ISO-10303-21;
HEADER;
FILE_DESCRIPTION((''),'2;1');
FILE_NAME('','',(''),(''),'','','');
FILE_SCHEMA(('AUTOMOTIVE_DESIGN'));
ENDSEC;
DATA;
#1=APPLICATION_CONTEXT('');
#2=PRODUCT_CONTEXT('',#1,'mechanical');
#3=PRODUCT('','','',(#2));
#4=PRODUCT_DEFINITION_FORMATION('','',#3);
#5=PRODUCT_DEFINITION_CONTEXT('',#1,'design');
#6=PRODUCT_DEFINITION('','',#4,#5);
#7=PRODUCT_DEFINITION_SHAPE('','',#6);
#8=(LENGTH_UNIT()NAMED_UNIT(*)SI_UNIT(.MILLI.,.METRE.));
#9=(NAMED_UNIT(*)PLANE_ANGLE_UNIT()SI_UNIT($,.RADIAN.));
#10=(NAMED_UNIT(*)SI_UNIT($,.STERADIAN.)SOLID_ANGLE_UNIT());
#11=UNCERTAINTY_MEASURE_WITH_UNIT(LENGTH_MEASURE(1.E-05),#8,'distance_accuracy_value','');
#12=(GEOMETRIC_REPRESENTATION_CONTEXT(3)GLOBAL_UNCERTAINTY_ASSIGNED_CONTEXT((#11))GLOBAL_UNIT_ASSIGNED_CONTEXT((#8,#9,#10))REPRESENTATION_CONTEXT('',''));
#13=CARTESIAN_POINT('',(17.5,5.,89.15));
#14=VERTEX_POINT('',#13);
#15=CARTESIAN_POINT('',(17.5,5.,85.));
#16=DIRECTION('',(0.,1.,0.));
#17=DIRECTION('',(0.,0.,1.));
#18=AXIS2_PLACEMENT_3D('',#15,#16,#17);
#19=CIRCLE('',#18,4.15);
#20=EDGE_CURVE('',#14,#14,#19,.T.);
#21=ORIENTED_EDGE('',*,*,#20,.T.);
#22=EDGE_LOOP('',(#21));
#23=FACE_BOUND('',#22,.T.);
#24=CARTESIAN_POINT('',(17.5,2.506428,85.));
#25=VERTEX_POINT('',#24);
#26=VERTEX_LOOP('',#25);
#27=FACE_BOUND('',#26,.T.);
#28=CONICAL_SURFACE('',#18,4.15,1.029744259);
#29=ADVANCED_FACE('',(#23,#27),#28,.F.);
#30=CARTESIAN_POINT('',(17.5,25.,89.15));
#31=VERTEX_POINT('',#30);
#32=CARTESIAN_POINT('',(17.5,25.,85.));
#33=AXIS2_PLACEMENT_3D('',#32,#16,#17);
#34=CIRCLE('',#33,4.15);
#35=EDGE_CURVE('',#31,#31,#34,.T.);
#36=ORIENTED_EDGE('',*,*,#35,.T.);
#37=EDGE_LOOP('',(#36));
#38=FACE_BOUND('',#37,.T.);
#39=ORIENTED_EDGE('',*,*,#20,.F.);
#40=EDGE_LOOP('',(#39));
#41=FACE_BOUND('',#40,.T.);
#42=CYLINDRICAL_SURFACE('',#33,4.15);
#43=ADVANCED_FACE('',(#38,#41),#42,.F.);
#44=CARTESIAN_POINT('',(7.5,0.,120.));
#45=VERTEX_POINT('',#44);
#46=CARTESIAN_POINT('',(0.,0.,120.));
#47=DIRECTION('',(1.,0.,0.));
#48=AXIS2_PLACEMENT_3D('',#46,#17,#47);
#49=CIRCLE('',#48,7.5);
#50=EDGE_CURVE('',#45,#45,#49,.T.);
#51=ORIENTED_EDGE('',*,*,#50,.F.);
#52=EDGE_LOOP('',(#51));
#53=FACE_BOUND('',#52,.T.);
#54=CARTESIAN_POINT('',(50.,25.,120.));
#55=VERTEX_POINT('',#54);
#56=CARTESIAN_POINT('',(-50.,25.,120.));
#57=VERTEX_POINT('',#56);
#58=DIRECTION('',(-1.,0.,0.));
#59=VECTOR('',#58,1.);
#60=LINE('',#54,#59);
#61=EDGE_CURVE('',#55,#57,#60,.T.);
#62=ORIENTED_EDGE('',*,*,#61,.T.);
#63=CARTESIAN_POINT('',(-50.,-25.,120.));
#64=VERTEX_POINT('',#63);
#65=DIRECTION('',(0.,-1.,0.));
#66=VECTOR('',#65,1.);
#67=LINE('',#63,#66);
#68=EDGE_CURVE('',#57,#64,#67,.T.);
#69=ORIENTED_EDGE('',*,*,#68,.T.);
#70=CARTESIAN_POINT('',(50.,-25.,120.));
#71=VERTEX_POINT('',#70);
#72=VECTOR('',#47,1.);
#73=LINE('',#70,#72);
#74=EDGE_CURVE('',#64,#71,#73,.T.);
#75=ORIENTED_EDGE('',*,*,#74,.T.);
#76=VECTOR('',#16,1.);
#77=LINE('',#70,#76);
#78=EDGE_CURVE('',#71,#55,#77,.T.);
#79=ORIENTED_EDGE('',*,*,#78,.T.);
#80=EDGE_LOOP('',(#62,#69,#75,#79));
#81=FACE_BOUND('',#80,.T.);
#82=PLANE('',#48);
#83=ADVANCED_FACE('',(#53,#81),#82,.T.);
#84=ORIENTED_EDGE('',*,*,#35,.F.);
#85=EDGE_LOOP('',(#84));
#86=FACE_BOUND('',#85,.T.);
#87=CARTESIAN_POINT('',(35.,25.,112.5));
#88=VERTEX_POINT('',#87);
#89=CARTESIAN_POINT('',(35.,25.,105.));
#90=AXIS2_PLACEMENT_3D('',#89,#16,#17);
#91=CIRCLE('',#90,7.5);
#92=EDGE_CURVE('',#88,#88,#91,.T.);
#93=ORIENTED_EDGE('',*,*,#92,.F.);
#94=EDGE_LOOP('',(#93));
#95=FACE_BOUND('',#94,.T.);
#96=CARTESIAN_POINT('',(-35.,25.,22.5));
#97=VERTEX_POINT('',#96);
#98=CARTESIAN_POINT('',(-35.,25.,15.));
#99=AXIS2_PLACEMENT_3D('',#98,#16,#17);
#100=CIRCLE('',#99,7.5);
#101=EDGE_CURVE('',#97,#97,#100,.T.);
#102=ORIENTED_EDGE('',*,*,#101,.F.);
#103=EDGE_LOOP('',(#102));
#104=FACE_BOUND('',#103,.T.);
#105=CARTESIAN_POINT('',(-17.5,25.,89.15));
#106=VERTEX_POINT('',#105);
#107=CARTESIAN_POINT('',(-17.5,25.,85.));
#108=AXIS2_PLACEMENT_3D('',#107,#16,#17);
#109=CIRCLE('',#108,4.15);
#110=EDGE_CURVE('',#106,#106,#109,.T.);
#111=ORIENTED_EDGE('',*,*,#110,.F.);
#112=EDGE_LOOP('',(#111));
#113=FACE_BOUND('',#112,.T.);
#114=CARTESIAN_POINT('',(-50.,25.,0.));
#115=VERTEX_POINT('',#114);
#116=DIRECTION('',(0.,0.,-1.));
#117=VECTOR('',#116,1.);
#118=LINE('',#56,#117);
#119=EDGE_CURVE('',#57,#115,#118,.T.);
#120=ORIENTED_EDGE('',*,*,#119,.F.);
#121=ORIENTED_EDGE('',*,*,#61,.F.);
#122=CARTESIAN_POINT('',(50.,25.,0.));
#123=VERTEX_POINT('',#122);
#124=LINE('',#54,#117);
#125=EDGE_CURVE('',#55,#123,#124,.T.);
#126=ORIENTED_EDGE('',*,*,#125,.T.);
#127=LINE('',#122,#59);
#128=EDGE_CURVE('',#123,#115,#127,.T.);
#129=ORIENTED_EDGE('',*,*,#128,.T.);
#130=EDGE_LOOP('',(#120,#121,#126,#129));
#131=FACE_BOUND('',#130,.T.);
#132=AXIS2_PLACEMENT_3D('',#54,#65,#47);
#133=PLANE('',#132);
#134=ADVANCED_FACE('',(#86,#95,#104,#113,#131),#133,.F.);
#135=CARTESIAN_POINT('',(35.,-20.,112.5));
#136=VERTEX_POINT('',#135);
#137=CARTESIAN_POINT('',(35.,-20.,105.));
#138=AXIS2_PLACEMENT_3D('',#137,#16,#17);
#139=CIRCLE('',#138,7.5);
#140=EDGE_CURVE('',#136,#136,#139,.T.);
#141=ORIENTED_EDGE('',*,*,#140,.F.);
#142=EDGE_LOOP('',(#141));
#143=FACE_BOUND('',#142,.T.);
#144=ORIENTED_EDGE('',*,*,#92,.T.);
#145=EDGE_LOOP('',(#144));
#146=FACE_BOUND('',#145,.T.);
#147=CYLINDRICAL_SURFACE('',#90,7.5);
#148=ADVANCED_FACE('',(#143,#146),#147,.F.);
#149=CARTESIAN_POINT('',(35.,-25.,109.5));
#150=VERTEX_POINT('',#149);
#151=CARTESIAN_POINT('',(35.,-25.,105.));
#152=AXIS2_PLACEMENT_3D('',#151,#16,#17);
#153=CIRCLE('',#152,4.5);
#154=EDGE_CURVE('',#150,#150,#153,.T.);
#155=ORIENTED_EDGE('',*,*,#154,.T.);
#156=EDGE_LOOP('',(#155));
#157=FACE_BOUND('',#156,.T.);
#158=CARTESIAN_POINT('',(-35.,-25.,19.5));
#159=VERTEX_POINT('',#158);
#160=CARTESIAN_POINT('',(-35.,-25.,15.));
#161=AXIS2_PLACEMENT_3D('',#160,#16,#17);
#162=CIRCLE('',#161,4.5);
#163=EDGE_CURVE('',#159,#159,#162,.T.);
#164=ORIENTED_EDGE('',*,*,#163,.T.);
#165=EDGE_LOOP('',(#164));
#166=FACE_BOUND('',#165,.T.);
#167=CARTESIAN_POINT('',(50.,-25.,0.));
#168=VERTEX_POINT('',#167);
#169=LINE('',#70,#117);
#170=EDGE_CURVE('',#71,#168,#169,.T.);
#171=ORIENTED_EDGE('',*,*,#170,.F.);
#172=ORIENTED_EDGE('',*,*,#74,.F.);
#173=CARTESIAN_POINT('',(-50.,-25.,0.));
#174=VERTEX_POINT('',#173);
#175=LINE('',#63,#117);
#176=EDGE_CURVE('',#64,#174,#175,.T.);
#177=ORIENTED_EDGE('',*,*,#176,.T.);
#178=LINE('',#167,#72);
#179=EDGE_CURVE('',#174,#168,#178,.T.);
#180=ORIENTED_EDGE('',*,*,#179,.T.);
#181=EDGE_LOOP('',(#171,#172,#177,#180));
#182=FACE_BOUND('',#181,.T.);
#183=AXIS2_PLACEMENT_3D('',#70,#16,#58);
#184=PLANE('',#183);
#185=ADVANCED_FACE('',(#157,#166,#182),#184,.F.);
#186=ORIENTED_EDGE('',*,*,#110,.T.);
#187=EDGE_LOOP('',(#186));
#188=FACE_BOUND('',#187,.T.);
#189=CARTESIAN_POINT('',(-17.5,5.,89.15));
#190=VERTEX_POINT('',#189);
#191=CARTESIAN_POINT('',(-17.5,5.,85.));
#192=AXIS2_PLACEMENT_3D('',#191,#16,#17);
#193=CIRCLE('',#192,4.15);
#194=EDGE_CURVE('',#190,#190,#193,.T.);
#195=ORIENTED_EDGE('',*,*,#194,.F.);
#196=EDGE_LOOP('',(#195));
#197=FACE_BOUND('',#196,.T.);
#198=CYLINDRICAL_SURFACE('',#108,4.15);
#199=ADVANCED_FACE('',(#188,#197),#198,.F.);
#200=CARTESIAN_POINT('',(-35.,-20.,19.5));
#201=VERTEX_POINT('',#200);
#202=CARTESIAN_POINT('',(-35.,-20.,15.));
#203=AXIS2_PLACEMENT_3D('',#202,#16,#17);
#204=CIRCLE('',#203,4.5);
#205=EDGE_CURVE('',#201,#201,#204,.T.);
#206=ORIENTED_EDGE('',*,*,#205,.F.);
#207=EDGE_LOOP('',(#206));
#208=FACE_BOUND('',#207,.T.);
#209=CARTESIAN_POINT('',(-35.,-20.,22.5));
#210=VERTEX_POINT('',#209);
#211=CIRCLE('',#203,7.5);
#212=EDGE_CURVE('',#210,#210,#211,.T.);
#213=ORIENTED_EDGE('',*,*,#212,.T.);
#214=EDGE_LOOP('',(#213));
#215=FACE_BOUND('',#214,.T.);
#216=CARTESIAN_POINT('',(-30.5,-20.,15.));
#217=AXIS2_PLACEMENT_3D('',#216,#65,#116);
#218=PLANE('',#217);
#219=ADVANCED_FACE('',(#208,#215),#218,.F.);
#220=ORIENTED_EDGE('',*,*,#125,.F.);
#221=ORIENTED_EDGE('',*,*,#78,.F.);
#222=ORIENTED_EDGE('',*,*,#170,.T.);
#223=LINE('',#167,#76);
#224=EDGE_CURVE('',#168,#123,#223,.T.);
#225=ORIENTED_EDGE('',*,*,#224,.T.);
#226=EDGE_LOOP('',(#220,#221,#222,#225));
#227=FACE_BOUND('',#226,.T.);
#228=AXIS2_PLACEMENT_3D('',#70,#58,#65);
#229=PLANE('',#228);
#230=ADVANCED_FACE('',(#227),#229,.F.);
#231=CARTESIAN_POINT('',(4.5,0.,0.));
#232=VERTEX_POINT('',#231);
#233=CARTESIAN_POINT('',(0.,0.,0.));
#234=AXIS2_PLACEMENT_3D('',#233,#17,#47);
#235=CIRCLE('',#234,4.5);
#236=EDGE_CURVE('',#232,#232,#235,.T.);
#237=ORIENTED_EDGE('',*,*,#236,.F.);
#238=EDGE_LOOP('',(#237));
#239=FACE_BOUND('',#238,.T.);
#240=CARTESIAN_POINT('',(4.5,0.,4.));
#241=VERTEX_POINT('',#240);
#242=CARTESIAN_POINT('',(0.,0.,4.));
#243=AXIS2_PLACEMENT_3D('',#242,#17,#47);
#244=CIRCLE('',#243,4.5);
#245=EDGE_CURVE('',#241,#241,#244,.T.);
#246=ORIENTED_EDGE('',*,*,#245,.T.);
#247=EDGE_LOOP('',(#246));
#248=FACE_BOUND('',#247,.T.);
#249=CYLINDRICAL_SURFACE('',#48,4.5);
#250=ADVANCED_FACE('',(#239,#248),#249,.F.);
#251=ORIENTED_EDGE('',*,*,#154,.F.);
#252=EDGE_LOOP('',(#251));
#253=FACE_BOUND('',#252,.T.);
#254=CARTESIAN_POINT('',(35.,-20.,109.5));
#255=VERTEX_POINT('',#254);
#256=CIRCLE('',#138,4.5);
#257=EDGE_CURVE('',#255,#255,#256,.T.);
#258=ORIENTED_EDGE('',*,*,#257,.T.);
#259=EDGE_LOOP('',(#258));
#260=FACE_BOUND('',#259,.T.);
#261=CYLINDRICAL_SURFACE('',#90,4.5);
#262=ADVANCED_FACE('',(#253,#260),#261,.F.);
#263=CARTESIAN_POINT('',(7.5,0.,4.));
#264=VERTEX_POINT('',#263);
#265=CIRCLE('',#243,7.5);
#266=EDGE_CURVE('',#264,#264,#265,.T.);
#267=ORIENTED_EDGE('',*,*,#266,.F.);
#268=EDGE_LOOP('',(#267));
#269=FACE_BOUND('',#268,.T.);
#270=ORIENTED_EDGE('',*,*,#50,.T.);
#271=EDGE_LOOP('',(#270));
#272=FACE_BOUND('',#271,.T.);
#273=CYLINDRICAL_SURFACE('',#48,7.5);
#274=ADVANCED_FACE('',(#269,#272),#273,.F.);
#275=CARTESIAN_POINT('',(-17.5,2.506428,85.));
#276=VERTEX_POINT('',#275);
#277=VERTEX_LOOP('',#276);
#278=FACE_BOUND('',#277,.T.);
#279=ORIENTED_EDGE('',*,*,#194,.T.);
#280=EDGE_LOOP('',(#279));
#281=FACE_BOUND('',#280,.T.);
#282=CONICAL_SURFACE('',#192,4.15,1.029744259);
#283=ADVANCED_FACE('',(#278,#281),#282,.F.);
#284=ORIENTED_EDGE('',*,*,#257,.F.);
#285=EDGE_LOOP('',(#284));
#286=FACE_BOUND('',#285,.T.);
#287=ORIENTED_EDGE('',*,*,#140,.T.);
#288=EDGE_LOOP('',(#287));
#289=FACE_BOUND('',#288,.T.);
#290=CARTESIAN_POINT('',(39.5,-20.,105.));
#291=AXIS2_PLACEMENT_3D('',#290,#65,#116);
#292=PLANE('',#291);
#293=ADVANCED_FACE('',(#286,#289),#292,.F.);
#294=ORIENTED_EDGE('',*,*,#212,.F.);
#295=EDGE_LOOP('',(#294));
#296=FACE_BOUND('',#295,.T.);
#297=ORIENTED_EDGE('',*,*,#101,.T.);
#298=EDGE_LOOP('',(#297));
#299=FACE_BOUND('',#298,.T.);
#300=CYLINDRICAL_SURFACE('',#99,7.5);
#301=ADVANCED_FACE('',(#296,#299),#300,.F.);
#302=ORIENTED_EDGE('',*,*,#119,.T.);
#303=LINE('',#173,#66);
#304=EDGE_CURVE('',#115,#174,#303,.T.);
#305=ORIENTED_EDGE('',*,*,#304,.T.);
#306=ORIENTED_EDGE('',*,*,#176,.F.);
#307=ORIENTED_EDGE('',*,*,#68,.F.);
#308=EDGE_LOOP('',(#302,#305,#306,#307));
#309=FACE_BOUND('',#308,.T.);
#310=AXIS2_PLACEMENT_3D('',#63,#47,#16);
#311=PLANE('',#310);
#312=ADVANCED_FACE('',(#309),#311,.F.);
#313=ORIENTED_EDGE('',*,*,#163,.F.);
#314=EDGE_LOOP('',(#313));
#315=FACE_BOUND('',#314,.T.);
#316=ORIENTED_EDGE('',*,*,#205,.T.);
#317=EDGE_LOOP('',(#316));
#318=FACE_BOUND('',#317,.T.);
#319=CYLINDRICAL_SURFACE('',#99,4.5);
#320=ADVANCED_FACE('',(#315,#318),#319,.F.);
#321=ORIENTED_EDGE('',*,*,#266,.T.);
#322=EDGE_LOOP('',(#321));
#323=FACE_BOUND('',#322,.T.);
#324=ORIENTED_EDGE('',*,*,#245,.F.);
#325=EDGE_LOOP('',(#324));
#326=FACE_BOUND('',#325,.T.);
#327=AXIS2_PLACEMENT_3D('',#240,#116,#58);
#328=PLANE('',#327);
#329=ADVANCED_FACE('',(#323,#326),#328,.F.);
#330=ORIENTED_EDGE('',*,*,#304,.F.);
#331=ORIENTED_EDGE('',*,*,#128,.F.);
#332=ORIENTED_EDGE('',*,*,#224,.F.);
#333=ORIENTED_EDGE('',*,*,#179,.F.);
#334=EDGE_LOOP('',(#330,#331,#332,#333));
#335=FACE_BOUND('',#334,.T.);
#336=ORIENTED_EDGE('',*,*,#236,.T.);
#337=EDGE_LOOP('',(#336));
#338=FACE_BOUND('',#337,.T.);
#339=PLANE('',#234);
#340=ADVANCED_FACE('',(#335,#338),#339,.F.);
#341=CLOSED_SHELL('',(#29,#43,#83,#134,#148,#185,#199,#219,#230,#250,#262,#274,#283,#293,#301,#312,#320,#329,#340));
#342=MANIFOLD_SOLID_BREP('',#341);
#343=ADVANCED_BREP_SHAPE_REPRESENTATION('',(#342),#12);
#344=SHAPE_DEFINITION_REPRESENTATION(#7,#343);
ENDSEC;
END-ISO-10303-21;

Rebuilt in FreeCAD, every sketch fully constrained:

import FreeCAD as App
import Part
import Sketcher
Q = App.Units.Quantity

doc = App.newDocument("Part")
body = doc.addObject("PartDesign::Body", "Body")

# Sketch on XY plane
sketch1 = body.newObject("Sketcher::SketchObject", "Sketch")
sketch1.AttachmentSupport = (doc.getObject("XY_Plane"), [""])
sketch1.MapMode = "FlatFace"
sketch1.addGeometry([
    Part.LineSegment(App.Vector(-50, 25, 0), App.Vector(-50, -25, 0)),
    Part.LineSegment(App.Vector(-50, -25, 0), App.Vector(50, -25, 0)),
    Part.LineSegment(App.Vector(50, -25, 0), App.Vector(50, 25, 0)),
    Part.LineSegment(App.Vector(50, 25, 0), App.Vector(-50, 25, 0)),
], False)
sketch1.addConstraint([
    Sketcher.Constraint("Coincident", 0, 2, 1, 1),
    Sketcher.Constraint("Coincident", 1, 2, 2, 1),
    Sketcher.Constraint("Coincident", 2, 2, 3, 1),
    Sketcher.Constraint("Coincident", 3, 2, 0, 1),
    Sketcher.Constraint("Vertical", 0),
    Sketcher.Constraint("Horizontal", 1),
    Sketcher.Constraint("Vertical", 2),
    Sketcher.Constraint("Horizontal", 3),
    Sketcher.Constraint("Symmetric", 0, 2, 2, 2, -1, 1),
    Sketcher.Constraint("DistanceX", 1, 1, 1, 2, Q("100 mm")),
    Sketcher.Constraint("DistanceY", 0, 2, 0, 1, Q("50 mm")),
])
pad1 = body.newObject("PartDesign::Pad", "Pad")
pad1.Profile = sketch1
pad1.Length = 120

# Sketch on XZ plane
sketch2 = body.newObject("Sketcher::SketchObject", "Sketch001")
sketch2.AttachmentSupport = (doc.getObject("XZ_Plane"), [""])
sketch2.MapMode = "FlatFace"
sketch2.AttachmentOffset = App.Placement(App.Vector(0, 0, -25), App.Rotation())
sketch2.addGeometry([
    Part.Circle(App.Vector(35, 105, 0), App.Vector(0, 0, 1), 4.5),
    Part.Circle(App.Vector(-35, 15, 0), App.Vector(0, 0, 1), 4.5),
], False)
sketch2.addConstraint([
    Sketcher.Constraint("Equal", 0, 1),
    Sketcher.Constraint("Diameter", 0, Q("9 mm")),
    Sketcher.Constraint("DistanceX", -1, 1, 0, 3, Q("35 mm")),
    Sketcher.Constraint("DistanceY", -1, 1, 0, 3, Q("105 mm")),
    Sketcher.Constraint("DistanceX", 1, 3, -1, 1, Q("35 mm")),
    Sketcher.Constraint("DistanceY", -1, 1, 1, 3, Q("15 mm")),
])
doc.recompute()
hole = body.newObject("PartDesign::Hole", "Hole")
hole.Profile = sketch2
hole.ThreadType = "None"
hole.Diameter = 9
hole.DepthType = "ThroughAll"
hole.HoleCutType = "Counterbore"
hole.HoleCutDiameter = 15
hole.HoleCutDepth = 45
hole.Reversed = True

# Sketch on XY plane
sketch3 = body.newObject("Sketcher::SketchObject", "Sketch002")
sketch3.AttachmentSupport = (doc.getObject("XY_Plane"), [""])
sketch3.MapMode = "FlatFace"
sketch3.AttachmentOffset = App.Placement(App.Vector(0, 0, 120), App.Rotation())
sketch3.addGeometry(Part.Circle(App.Vector(0, 0, 0), App.Vector(0, 0, 1), 4.5), False)
sketch3.addConstraint([
    Sketcher.Constraint("Coincident", 0, 3, -1, 1),
    Sketcher.Constraint("Diameter", 0, Q("9 mm")),
])
doc.recompute()
hole2 = body.newObject("PartDesign::Hole", "Hole001")
hole2.Profile = sketch3
hole2.ThreadType = "None"
hole2.Diameter = 9
hole2.DepthType = "ThroughAll"
hole2.HoleCutType = "Counterbore"
hole2.HoleCutDiameter = 15
hole2.HoleCutDepth = 116

# Sketch on XZ plane
sketch4 = body.newObject("Sketcher::SketchObject", "Sketch003")
sketch4.AttachmentSupport = (doc.getObject("XZ_Plane"), [""])
sketch4.MapMode = "FlatFace"
sketch4.AttachmentOffset = App.Placement(App.Vector(0, 0, -25), App.Rotation())
sketch4.addGeometry([
    Part.Circle(App.Vector(-17.5, 85, 0), App.Vector(0, 0, 1), 4.2),
    Part.Circle(App.Vector(17.5, 85, 0), App.Vector(0, 0, 1), 4.2),
], False)
sketch4.addConstraint([
    Sketcher.Constraint("Equal", 0, 1),
    Sketcher.Constraint("Symmetric", 0, 3, 1, 3, -2),
    Sketcher.Constraint("Diameter", 0, Q("8.3 mm")),
    Sketcher.Constraint("DistanceY", -1, 1, 0, 3, Q("85 mm")),
    Sketcher.Constraint("DistanceX", 0, 3, 1, 3, Q("35 mm")),
])
doc.recompute()
hole3 = body.newObject("PartDesign::Hole", "Hole002")
hole3.Profile = sketch4
hole3.ThreadType = "None"
hole3.Diameter = 8.3
hole3.DepthType = "Dimension"
hole3.Depth = 20
hole3.DrillPoint = "Angled"
hole3.DrillPointAngle = 118
hole3.Reversed = True

doc.recompute()
